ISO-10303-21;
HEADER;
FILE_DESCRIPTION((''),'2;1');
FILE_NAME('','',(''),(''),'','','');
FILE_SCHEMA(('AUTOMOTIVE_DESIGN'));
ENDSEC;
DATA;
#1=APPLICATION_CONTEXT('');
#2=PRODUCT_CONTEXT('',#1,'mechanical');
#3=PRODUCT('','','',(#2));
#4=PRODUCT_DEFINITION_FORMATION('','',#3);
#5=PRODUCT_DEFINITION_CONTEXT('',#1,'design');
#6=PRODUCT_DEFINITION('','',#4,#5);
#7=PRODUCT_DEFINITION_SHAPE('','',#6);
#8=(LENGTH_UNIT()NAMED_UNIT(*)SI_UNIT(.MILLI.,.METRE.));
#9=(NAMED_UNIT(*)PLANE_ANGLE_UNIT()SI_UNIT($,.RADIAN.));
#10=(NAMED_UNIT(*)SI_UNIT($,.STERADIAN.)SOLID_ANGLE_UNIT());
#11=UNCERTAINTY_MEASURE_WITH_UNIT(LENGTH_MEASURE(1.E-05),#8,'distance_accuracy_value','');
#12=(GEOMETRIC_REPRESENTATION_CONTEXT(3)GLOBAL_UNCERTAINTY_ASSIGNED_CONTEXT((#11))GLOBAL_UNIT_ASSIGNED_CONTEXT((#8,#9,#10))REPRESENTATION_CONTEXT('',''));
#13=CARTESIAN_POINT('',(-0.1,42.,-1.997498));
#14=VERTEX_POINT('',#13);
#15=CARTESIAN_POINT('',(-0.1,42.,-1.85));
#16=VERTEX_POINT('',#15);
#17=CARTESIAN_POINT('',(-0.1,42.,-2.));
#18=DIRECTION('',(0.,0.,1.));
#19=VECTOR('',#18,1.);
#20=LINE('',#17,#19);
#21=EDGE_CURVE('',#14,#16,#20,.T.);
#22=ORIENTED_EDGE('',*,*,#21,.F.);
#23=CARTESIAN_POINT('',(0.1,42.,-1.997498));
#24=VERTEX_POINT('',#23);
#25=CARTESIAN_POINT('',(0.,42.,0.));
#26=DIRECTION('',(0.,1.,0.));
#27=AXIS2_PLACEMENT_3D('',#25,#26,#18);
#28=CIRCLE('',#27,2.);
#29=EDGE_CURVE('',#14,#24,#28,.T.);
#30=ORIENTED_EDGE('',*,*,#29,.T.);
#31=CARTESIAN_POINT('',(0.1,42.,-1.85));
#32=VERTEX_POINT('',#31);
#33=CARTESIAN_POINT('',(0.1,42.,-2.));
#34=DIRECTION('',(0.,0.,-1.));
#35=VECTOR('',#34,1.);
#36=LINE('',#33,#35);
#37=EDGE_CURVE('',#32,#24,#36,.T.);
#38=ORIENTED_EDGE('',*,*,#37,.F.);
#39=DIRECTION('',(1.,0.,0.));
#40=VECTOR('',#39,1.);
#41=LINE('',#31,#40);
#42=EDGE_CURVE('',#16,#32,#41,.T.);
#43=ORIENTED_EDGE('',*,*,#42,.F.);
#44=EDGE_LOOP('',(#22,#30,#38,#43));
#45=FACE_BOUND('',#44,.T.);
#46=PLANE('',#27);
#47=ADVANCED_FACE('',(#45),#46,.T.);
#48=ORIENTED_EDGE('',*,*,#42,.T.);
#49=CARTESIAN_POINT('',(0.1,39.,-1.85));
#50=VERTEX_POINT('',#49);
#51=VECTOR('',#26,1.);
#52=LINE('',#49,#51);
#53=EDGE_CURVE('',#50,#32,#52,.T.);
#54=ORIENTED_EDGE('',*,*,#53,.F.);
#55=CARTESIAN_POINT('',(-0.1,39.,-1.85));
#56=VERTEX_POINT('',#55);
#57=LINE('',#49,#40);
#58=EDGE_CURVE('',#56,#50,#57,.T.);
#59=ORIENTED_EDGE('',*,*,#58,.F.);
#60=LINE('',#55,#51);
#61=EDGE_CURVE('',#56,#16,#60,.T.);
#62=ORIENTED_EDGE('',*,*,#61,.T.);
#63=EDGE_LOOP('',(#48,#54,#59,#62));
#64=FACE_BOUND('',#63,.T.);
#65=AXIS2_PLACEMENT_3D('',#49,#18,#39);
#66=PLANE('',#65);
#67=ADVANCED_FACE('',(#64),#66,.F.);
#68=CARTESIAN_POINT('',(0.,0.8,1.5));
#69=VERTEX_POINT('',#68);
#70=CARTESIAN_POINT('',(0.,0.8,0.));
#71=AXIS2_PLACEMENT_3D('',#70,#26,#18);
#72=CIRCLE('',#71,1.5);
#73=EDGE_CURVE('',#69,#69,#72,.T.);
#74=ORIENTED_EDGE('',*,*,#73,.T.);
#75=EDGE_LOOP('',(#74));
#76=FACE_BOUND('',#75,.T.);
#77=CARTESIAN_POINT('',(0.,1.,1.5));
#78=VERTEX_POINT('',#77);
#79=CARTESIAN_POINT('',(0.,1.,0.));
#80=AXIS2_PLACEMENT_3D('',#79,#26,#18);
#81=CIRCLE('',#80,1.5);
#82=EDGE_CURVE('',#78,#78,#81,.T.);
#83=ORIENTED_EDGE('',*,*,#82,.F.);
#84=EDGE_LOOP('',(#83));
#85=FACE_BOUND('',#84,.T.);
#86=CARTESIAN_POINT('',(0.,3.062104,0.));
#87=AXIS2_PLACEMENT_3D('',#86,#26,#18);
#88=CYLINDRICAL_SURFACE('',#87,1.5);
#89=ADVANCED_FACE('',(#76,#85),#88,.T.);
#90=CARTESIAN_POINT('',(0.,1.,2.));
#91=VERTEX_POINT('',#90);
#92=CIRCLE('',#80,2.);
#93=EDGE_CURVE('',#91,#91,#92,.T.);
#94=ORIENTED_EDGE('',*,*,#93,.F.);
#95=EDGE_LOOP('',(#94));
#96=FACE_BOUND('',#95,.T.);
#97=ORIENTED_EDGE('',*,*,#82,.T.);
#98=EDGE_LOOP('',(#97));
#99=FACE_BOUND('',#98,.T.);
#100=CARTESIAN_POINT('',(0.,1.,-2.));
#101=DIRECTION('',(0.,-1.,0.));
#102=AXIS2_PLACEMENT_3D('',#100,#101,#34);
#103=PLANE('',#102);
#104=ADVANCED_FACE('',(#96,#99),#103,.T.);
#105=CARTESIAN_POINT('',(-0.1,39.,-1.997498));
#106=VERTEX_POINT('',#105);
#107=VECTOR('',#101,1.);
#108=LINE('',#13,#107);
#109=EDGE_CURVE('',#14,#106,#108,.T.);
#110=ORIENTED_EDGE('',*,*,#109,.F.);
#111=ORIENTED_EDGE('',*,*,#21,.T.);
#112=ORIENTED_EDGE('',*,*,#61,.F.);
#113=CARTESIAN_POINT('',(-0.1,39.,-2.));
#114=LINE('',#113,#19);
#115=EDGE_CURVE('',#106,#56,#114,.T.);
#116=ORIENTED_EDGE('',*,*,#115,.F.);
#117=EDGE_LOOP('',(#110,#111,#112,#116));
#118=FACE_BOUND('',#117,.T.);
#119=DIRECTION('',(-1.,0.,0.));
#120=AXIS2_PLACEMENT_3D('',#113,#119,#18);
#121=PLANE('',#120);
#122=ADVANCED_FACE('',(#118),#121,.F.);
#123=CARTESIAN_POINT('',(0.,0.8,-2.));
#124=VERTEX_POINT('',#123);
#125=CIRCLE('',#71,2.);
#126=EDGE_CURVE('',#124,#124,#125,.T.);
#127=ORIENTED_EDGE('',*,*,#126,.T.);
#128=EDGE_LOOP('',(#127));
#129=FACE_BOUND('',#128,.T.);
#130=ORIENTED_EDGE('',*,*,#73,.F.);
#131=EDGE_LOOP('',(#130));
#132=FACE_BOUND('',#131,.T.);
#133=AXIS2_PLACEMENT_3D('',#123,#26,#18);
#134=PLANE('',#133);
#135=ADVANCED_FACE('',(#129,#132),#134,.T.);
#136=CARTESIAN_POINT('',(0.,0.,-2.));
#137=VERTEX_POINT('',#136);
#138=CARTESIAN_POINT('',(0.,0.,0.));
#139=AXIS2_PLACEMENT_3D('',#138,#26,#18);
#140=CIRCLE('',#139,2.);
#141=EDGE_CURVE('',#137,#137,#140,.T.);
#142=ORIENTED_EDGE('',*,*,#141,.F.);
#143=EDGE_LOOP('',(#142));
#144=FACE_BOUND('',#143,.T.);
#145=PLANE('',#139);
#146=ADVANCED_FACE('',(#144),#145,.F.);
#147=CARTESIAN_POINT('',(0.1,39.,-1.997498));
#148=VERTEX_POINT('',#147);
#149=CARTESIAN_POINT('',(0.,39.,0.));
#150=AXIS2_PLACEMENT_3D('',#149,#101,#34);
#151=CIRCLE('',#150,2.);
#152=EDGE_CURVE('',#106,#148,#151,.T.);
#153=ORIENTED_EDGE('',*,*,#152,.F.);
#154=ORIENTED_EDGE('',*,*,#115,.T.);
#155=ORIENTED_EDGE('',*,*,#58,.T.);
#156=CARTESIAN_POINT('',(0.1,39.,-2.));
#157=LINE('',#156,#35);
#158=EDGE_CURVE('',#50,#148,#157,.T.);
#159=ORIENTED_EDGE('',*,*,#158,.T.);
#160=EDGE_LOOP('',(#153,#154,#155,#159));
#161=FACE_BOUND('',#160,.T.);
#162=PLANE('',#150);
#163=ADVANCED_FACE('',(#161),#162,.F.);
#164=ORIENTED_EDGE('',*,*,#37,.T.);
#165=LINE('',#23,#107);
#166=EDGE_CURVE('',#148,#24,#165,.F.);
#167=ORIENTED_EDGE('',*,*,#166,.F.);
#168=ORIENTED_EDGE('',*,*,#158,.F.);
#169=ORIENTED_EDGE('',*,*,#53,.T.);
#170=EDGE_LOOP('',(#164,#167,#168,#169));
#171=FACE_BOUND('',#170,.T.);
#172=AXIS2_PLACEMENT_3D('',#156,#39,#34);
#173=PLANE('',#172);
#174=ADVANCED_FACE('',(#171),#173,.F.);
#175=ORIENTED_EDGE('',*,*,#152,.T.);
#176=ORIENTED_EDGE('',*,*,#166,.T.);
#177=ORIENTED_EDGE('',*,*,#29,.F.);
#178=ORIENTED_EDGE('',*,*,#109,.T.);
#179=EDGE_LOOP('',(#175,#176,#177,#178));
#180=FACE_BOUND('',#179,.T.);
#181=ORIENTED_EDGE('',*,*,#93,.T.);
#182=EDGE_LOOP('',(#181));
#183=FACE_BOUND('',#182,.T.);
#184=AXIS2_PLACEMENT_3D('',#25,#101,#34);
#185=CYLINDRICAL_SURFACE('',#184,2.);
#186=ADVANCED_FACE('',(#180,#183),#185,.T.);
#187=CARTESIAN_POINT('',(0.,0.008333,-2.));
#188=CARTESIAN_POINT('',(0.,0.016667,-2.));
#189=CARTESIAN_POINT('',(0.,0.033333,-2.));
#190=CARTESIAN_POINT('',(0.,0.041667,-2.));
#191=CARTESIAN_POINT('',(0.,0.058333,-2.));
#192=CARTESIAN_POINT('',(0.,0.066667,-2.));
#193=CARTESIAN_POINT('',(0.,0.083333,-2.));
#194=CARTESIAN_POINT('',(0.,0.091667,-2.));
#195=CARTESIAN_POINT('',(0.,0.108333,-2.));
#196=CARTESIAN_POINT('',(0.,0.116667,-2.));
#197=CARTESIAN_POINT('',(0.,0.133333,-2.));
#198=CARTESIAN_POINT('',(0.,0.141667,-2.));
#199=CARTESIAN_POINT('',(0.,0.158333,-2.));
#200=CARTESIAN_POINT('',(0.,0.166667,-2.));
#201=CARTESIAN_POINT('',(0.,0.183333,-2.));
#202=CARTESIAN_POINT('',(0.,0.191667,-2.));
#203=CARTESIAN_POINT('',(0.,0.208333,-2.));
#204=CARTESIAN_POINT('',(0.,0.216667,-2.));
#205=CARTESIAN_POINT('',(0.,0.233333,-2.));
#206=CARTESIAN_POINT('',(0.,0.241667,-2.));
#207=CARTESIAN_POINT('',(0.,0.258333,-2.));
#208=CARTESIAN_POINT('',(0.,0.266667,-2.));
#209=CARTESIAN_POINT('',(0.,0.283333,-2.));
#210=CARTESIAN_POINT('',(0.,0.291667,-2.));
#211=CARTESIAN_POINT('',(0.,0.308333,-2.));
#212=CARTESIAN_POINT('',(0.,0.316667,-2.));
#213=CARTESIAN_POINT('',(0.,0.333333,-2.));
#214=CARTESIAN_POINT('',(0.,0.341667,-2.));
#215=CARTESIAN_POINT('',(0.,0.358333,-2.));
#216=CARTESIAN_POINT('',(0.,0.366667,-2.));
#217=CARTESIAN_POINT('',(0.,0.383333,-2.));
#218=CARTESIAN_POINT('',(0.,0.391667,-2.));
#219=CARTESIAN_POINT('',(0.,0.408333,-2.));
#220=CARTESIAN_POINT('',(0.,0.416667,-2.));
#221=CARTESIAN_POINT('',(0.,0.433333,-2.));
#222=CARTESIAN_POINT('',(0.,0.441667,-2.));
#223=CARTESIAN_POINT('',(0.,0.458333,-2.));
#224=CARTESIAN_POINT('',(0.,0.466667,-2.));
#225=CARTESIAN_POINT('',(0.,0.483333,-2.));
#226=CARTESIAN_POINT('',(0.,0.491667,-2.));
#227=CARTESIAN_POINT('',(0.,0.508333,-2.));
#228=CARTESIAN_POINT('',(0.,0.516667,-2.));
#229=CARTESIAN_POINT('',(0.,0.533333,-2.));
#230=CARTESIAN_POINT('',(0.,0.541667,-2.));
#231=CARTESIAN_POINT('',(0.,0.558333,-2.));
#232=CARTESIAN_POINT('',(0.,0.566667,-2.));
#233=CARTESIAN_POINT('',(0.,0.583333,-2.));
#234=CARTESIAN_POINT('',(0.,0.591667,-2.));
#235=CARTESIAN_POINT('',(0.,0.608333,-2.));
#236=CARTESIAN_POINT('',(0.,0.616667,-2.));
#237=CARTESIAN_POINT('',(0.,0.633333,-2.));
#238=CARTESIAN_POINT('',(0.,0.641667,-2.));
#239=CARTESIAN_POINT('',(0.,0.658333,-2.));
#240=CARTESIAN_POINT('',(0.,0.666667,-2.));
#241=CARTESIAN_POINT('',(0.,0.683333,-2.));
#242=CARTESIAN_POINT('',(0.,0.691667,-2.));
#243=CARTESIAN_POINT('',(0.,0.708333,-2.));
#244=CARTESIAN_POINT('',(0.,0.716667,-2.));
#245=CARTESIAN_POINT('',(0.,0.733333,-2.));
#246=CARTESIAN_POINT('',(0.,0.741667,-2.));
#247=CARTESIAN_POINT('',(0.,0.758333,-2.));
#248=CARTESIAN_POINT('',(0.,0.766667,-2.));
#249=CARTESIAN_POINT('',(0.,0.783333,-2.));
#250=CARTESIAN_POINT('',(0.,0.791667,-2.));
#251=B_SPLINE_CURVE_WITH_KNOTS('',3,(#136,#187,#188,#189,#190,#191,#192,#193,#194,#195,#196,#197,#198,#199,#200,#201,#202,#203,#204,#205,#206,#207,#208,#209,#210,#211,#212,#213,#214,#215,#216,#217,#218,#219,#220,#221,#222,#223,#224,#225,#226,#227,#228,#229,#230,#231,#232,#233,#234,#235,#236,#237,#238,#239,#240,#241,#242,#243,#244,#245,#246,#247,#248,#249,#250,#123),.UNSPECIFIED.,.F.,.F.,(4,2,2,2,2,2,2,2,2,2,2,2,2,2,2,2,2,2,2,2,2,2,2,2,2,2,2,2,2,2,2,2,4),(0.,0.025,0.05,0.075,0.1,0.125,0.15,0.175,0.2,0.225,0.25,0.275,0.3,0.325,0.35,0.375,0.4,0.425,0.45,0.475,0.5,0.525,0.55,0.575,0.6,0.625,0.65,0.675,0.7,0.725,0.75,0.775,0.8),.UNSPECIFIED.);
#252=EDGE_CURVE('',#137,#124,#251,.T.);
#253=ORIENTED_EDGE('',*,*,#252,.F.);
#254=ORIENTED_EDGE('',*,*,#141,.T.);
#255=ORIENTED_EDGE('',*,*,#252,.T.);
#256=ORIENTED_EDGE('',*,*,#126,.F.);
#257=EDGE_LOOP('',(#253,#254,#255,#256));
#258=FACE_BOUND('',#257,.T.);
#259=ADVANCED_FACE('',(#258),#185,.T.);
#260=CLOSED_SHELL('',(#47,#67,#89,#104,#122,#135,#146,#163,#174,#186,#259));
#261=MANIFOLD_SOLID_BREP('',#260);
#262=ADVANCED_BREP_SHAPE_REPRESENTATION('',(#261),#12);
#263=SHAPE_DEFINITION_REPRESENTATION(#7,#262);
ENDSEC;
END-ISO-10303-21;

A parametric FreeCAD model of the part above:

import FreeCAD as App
import Part
import Sketcher
from FreeCAD import Vector


def add_polygon(sketch, points):
    """Adds a closed chain of lines whose ends are joined by coincident constraints."""
    first, n = sketch.GeometryCount, len(points)
    for a, b in zip(points, points[1:] + points[:1]):
        sketch.addGeometry(Part.LineSegment(App.Vector(*a, 0), App.Vector(*b, 0)), False)
    for i in range(n):
        sketch.addConstraint(Sketcher.Constraint("Coincident", first + i, 2, first + (i + 1) % n, 1))

doc = App.newDocument("Part")
body = doc.addObject("PartDesign::Body", "Body")

sketch1 = doc.addObject("Sketcher::SketchObject", "Sketch")
body.addObject(sketch1)
sketch1.AttachmentSupport = (doc.XZ_Plane, [""])
sketch1.MapMode = "FlatFace"
sketch1.addGeometry(Part.Circle(Vector(0, 0, 0), Vector(0, 0, 1), 2), False)
sketch1.addConstraint([
    Sketcher.Constraint("Coincident", 0, 3, -1, 1),
    Sketcher.Constraint("Diameter", 0, 4.0),
])
pad1 = doc.addObject("PartDesign::Pad", "Pad")
body.addObject(pad1)
pad1.Profile = sketch1
pad1.Length = 42
pad1.Reversed = True

sketch2 = doc.addObject("Sketcher::SketchObject", "Sketch001")
body.addObject(sketch2)
sketch2.AttachmentSupport = (doc.YZ_Plane, [""])
sketch2.MapMode = "FlatFace"
add_polygon(sketch2, [(1, -1.5), (0.8, -1.5), (0.8, -2), (1, -2)])
sketch2.addConstraint([
    Sketcher.Constraint("Horizontal", 0),
    Sketcher.Constraint("Vertical", 1),
    Sketcher.Constraint("Horizontal", 2),
    Sketcher.Constraint("Vertical", 3),
    Sketcher.Constraint("DistanceX", 0, 2, 0, 1, 0.2),
    Sketcher.Constraint("DistanceY", 1, 2, 1, 1, 0.5),
    Sketcher.Constraint("DistanceY", 1, 2, -1, 1, 2.0),
    Sketcher.Constraint("DistanceX", -1, 1, 2, 2, 1.0),
])
groove = doc.addObject("PartDesign::Groove", "Groove")
body.addObject(groove)
groove.Profile = sketch2
groove.ReferenceAxis = (sketch2, ["H_Axis"])
groove.Angle = 360

sketch3 = doc.addObject("Sketcher::SketchObject", "Sketch002")
body.addObject(sketch3)
sketch3.AttachmentSupport = (doc.XZ_Plane, [""])
sketch3.MapMode = "FlatFace"
sketch3.AttachmentOffset = App.Placement(Vector(0, 0, -42), App.Rotation())
add_polygon(sketch3, [(-0.1, -2), (-0.1, -1.85), (0.1, -1.85), (0.1, -2)])
sketch3.addConstraint([
    Sketcher.Constraint("Vertical", 0),
    Sketcher.Constraint("Horizontal", 1),
    Sketcher.Constraint("Vertical", 2),
    Sketcher.Constraint("Horizontal", 3),
    Sketcher.Constraint("DistanceX", 1, 1, 1, 2, 0.2),
    Sketcher.Constraint("DistanceY", 2, 2, -1, 1, 2.0),
    Sketcher.Constraint("DistanceY", 0, 1, 0, 2, 0.15),
    Sketcher.Constraint("DistanceX", 0, 2, -1, 1, 0.1),
])
pocket1 = doc.addObject("PartDesign::Pocket", "Pocket")
body.addObject(pocket1)
pocket1.Profile = sketch3
pocket1.Length = 3
pocket1.Reversed = True

doc.recompute()
